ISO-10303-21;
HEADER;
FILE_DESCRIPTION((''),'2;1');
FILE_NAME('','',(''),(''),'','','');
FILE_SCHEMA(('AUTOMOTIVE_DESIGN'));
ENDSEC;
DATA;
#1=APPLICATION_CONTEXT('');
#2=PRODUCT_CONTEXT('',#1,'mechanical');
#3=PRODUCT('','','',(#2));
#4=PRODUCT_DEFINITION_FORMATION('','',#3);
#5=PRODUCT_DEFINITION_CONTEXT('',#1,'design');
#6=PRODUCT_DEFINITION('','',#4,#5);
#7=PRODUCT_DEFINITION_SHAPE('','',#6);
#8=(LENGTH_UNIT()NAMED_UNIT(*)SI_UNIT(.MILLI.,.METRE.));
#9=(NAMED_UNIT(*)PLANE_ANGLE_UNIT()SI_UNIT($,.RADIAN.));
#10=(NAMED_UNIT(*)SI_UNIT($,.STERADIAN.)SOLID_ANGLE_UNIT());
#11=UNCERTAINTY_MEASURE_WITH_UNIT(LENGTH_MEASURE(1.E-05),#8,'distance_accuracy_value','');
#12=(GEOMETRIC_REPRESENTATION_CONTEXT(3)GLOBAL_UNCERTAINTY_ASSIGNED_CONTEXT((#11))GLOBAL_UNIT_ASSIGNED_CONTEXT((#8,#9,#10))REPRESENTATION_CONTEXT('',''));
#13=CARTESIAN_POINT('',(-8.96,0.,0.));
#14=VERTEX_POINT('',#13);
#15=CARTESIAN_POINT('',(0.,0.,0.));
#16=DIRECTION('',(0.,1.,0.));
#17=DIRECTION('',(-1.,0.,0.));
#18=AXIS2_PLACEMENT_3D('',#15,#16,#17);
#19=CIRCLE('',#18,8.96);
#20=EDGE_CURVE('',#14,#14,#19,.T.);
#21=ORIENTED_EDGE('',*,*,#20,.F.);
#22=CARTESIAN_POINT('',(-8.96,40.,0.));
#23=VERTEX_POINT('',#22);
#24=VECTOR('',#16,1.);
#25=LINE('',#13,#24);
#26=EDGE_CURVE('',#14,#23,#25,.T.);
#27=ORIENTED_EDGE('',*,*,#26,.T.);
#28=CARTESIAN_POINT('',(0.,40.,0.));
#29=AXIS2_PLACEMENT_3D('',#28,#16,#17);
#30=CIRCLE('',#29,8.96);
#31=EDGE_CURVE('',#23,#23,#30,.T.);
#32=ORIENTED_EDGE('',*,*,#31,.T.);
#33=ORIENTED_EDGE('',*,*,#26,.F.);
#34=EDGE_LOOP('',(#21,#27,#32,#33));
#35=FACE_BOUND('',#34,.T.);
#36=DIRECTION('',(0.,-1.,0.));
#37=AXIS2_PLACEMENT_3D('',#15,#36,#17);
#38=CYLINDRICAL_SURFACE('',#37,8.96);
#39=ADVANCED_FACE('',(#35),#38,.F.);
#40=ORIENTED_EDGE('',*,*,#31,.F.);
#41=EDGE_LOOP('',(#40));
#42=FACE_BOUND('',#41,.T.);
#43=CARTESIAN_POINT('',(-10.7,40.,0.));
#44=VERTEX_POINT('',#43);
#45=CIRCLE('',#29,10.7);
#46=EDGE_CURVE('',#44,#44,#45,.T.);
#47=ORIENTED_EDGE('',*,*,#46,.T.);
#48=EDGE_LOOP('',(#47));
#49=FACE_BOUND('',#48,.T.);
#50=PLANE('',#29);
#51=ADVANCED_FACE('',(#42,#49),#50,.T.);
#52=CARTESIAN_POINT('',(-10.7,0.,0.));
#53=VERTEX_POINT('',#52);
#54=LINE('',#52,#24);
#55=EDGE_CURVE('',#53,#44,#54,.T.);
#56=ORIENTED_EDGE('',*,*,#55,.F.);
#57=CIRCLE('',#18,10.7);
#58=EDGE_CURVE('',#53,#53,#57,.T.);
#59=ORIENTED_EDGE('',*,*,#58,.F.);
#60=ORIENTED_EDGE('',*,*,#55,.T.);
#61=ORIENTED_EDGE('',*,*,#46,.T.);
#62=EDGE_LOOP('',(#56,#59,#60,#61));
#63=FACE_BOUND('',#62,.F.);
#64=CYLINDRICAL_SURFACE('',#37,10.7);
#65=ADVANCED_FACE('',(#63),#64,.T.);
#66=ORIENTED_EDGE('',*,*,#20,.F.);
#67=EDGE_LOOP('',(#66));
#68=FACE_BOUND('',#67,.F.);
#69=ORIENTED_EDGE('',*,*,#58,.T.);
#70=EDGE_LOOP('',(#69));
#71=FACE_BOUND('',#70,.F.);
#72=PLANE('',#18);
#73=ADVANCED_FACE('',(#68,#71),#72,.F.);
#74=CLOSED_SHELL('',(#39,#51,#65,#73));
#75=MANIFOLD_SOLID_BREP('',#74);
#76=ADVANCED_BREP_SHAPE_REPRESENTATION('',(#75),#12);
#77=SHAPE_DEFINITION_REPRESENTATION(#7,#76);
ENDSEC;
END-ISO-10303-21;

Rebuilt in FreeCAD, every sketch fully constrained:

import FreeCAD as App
import Part
import Sketcher
Q = App.Units.Quantity

doc = App.newDocument("Part")
body = doc.addObject("PartDesign::Body", "Body")

# Sketch on XZ plane
sketch1 = doc.addObject("Sketcher::SketchObject", "Sketch")
body.addObject(sketch1)
sketch1.AttachmentSupport = (doc.XZ_Plane, [""])
sketch1.MapMode = "FlatFace"
sketch1.addGeometry(Part.Circle(App.Vector(0, 0, 0), App.Vector(0, 0, 1), 10.7), False)
sketch1.addGeometry(Part.Circle(App.Vector(0, 0, 0), App.Vector(0, 0, 1), 8.96), False)
sketch1.addConstraint(Sketcher.Constraint("Coincident", 0, 3, -1, 1))
sketch1.addConstraint(Sketcher.Constraint("Coincident", 1, 3, -1, 1))
sketch1.addConstraint(Sketcher.Constraint("Diameter", 0, Q("21.4 mm")))
sketch1.addConstraint(Sketcher.Constraint("Diameter", 1, Q("17.92 mm")))
pad1 = doc.addObject("PartDesign::Pad", "Pad")
body.addObject(pad1)
pad1.Profile = sketch1
pad1.Length = 40
pad1.Reversed = True

doc.recompute()
